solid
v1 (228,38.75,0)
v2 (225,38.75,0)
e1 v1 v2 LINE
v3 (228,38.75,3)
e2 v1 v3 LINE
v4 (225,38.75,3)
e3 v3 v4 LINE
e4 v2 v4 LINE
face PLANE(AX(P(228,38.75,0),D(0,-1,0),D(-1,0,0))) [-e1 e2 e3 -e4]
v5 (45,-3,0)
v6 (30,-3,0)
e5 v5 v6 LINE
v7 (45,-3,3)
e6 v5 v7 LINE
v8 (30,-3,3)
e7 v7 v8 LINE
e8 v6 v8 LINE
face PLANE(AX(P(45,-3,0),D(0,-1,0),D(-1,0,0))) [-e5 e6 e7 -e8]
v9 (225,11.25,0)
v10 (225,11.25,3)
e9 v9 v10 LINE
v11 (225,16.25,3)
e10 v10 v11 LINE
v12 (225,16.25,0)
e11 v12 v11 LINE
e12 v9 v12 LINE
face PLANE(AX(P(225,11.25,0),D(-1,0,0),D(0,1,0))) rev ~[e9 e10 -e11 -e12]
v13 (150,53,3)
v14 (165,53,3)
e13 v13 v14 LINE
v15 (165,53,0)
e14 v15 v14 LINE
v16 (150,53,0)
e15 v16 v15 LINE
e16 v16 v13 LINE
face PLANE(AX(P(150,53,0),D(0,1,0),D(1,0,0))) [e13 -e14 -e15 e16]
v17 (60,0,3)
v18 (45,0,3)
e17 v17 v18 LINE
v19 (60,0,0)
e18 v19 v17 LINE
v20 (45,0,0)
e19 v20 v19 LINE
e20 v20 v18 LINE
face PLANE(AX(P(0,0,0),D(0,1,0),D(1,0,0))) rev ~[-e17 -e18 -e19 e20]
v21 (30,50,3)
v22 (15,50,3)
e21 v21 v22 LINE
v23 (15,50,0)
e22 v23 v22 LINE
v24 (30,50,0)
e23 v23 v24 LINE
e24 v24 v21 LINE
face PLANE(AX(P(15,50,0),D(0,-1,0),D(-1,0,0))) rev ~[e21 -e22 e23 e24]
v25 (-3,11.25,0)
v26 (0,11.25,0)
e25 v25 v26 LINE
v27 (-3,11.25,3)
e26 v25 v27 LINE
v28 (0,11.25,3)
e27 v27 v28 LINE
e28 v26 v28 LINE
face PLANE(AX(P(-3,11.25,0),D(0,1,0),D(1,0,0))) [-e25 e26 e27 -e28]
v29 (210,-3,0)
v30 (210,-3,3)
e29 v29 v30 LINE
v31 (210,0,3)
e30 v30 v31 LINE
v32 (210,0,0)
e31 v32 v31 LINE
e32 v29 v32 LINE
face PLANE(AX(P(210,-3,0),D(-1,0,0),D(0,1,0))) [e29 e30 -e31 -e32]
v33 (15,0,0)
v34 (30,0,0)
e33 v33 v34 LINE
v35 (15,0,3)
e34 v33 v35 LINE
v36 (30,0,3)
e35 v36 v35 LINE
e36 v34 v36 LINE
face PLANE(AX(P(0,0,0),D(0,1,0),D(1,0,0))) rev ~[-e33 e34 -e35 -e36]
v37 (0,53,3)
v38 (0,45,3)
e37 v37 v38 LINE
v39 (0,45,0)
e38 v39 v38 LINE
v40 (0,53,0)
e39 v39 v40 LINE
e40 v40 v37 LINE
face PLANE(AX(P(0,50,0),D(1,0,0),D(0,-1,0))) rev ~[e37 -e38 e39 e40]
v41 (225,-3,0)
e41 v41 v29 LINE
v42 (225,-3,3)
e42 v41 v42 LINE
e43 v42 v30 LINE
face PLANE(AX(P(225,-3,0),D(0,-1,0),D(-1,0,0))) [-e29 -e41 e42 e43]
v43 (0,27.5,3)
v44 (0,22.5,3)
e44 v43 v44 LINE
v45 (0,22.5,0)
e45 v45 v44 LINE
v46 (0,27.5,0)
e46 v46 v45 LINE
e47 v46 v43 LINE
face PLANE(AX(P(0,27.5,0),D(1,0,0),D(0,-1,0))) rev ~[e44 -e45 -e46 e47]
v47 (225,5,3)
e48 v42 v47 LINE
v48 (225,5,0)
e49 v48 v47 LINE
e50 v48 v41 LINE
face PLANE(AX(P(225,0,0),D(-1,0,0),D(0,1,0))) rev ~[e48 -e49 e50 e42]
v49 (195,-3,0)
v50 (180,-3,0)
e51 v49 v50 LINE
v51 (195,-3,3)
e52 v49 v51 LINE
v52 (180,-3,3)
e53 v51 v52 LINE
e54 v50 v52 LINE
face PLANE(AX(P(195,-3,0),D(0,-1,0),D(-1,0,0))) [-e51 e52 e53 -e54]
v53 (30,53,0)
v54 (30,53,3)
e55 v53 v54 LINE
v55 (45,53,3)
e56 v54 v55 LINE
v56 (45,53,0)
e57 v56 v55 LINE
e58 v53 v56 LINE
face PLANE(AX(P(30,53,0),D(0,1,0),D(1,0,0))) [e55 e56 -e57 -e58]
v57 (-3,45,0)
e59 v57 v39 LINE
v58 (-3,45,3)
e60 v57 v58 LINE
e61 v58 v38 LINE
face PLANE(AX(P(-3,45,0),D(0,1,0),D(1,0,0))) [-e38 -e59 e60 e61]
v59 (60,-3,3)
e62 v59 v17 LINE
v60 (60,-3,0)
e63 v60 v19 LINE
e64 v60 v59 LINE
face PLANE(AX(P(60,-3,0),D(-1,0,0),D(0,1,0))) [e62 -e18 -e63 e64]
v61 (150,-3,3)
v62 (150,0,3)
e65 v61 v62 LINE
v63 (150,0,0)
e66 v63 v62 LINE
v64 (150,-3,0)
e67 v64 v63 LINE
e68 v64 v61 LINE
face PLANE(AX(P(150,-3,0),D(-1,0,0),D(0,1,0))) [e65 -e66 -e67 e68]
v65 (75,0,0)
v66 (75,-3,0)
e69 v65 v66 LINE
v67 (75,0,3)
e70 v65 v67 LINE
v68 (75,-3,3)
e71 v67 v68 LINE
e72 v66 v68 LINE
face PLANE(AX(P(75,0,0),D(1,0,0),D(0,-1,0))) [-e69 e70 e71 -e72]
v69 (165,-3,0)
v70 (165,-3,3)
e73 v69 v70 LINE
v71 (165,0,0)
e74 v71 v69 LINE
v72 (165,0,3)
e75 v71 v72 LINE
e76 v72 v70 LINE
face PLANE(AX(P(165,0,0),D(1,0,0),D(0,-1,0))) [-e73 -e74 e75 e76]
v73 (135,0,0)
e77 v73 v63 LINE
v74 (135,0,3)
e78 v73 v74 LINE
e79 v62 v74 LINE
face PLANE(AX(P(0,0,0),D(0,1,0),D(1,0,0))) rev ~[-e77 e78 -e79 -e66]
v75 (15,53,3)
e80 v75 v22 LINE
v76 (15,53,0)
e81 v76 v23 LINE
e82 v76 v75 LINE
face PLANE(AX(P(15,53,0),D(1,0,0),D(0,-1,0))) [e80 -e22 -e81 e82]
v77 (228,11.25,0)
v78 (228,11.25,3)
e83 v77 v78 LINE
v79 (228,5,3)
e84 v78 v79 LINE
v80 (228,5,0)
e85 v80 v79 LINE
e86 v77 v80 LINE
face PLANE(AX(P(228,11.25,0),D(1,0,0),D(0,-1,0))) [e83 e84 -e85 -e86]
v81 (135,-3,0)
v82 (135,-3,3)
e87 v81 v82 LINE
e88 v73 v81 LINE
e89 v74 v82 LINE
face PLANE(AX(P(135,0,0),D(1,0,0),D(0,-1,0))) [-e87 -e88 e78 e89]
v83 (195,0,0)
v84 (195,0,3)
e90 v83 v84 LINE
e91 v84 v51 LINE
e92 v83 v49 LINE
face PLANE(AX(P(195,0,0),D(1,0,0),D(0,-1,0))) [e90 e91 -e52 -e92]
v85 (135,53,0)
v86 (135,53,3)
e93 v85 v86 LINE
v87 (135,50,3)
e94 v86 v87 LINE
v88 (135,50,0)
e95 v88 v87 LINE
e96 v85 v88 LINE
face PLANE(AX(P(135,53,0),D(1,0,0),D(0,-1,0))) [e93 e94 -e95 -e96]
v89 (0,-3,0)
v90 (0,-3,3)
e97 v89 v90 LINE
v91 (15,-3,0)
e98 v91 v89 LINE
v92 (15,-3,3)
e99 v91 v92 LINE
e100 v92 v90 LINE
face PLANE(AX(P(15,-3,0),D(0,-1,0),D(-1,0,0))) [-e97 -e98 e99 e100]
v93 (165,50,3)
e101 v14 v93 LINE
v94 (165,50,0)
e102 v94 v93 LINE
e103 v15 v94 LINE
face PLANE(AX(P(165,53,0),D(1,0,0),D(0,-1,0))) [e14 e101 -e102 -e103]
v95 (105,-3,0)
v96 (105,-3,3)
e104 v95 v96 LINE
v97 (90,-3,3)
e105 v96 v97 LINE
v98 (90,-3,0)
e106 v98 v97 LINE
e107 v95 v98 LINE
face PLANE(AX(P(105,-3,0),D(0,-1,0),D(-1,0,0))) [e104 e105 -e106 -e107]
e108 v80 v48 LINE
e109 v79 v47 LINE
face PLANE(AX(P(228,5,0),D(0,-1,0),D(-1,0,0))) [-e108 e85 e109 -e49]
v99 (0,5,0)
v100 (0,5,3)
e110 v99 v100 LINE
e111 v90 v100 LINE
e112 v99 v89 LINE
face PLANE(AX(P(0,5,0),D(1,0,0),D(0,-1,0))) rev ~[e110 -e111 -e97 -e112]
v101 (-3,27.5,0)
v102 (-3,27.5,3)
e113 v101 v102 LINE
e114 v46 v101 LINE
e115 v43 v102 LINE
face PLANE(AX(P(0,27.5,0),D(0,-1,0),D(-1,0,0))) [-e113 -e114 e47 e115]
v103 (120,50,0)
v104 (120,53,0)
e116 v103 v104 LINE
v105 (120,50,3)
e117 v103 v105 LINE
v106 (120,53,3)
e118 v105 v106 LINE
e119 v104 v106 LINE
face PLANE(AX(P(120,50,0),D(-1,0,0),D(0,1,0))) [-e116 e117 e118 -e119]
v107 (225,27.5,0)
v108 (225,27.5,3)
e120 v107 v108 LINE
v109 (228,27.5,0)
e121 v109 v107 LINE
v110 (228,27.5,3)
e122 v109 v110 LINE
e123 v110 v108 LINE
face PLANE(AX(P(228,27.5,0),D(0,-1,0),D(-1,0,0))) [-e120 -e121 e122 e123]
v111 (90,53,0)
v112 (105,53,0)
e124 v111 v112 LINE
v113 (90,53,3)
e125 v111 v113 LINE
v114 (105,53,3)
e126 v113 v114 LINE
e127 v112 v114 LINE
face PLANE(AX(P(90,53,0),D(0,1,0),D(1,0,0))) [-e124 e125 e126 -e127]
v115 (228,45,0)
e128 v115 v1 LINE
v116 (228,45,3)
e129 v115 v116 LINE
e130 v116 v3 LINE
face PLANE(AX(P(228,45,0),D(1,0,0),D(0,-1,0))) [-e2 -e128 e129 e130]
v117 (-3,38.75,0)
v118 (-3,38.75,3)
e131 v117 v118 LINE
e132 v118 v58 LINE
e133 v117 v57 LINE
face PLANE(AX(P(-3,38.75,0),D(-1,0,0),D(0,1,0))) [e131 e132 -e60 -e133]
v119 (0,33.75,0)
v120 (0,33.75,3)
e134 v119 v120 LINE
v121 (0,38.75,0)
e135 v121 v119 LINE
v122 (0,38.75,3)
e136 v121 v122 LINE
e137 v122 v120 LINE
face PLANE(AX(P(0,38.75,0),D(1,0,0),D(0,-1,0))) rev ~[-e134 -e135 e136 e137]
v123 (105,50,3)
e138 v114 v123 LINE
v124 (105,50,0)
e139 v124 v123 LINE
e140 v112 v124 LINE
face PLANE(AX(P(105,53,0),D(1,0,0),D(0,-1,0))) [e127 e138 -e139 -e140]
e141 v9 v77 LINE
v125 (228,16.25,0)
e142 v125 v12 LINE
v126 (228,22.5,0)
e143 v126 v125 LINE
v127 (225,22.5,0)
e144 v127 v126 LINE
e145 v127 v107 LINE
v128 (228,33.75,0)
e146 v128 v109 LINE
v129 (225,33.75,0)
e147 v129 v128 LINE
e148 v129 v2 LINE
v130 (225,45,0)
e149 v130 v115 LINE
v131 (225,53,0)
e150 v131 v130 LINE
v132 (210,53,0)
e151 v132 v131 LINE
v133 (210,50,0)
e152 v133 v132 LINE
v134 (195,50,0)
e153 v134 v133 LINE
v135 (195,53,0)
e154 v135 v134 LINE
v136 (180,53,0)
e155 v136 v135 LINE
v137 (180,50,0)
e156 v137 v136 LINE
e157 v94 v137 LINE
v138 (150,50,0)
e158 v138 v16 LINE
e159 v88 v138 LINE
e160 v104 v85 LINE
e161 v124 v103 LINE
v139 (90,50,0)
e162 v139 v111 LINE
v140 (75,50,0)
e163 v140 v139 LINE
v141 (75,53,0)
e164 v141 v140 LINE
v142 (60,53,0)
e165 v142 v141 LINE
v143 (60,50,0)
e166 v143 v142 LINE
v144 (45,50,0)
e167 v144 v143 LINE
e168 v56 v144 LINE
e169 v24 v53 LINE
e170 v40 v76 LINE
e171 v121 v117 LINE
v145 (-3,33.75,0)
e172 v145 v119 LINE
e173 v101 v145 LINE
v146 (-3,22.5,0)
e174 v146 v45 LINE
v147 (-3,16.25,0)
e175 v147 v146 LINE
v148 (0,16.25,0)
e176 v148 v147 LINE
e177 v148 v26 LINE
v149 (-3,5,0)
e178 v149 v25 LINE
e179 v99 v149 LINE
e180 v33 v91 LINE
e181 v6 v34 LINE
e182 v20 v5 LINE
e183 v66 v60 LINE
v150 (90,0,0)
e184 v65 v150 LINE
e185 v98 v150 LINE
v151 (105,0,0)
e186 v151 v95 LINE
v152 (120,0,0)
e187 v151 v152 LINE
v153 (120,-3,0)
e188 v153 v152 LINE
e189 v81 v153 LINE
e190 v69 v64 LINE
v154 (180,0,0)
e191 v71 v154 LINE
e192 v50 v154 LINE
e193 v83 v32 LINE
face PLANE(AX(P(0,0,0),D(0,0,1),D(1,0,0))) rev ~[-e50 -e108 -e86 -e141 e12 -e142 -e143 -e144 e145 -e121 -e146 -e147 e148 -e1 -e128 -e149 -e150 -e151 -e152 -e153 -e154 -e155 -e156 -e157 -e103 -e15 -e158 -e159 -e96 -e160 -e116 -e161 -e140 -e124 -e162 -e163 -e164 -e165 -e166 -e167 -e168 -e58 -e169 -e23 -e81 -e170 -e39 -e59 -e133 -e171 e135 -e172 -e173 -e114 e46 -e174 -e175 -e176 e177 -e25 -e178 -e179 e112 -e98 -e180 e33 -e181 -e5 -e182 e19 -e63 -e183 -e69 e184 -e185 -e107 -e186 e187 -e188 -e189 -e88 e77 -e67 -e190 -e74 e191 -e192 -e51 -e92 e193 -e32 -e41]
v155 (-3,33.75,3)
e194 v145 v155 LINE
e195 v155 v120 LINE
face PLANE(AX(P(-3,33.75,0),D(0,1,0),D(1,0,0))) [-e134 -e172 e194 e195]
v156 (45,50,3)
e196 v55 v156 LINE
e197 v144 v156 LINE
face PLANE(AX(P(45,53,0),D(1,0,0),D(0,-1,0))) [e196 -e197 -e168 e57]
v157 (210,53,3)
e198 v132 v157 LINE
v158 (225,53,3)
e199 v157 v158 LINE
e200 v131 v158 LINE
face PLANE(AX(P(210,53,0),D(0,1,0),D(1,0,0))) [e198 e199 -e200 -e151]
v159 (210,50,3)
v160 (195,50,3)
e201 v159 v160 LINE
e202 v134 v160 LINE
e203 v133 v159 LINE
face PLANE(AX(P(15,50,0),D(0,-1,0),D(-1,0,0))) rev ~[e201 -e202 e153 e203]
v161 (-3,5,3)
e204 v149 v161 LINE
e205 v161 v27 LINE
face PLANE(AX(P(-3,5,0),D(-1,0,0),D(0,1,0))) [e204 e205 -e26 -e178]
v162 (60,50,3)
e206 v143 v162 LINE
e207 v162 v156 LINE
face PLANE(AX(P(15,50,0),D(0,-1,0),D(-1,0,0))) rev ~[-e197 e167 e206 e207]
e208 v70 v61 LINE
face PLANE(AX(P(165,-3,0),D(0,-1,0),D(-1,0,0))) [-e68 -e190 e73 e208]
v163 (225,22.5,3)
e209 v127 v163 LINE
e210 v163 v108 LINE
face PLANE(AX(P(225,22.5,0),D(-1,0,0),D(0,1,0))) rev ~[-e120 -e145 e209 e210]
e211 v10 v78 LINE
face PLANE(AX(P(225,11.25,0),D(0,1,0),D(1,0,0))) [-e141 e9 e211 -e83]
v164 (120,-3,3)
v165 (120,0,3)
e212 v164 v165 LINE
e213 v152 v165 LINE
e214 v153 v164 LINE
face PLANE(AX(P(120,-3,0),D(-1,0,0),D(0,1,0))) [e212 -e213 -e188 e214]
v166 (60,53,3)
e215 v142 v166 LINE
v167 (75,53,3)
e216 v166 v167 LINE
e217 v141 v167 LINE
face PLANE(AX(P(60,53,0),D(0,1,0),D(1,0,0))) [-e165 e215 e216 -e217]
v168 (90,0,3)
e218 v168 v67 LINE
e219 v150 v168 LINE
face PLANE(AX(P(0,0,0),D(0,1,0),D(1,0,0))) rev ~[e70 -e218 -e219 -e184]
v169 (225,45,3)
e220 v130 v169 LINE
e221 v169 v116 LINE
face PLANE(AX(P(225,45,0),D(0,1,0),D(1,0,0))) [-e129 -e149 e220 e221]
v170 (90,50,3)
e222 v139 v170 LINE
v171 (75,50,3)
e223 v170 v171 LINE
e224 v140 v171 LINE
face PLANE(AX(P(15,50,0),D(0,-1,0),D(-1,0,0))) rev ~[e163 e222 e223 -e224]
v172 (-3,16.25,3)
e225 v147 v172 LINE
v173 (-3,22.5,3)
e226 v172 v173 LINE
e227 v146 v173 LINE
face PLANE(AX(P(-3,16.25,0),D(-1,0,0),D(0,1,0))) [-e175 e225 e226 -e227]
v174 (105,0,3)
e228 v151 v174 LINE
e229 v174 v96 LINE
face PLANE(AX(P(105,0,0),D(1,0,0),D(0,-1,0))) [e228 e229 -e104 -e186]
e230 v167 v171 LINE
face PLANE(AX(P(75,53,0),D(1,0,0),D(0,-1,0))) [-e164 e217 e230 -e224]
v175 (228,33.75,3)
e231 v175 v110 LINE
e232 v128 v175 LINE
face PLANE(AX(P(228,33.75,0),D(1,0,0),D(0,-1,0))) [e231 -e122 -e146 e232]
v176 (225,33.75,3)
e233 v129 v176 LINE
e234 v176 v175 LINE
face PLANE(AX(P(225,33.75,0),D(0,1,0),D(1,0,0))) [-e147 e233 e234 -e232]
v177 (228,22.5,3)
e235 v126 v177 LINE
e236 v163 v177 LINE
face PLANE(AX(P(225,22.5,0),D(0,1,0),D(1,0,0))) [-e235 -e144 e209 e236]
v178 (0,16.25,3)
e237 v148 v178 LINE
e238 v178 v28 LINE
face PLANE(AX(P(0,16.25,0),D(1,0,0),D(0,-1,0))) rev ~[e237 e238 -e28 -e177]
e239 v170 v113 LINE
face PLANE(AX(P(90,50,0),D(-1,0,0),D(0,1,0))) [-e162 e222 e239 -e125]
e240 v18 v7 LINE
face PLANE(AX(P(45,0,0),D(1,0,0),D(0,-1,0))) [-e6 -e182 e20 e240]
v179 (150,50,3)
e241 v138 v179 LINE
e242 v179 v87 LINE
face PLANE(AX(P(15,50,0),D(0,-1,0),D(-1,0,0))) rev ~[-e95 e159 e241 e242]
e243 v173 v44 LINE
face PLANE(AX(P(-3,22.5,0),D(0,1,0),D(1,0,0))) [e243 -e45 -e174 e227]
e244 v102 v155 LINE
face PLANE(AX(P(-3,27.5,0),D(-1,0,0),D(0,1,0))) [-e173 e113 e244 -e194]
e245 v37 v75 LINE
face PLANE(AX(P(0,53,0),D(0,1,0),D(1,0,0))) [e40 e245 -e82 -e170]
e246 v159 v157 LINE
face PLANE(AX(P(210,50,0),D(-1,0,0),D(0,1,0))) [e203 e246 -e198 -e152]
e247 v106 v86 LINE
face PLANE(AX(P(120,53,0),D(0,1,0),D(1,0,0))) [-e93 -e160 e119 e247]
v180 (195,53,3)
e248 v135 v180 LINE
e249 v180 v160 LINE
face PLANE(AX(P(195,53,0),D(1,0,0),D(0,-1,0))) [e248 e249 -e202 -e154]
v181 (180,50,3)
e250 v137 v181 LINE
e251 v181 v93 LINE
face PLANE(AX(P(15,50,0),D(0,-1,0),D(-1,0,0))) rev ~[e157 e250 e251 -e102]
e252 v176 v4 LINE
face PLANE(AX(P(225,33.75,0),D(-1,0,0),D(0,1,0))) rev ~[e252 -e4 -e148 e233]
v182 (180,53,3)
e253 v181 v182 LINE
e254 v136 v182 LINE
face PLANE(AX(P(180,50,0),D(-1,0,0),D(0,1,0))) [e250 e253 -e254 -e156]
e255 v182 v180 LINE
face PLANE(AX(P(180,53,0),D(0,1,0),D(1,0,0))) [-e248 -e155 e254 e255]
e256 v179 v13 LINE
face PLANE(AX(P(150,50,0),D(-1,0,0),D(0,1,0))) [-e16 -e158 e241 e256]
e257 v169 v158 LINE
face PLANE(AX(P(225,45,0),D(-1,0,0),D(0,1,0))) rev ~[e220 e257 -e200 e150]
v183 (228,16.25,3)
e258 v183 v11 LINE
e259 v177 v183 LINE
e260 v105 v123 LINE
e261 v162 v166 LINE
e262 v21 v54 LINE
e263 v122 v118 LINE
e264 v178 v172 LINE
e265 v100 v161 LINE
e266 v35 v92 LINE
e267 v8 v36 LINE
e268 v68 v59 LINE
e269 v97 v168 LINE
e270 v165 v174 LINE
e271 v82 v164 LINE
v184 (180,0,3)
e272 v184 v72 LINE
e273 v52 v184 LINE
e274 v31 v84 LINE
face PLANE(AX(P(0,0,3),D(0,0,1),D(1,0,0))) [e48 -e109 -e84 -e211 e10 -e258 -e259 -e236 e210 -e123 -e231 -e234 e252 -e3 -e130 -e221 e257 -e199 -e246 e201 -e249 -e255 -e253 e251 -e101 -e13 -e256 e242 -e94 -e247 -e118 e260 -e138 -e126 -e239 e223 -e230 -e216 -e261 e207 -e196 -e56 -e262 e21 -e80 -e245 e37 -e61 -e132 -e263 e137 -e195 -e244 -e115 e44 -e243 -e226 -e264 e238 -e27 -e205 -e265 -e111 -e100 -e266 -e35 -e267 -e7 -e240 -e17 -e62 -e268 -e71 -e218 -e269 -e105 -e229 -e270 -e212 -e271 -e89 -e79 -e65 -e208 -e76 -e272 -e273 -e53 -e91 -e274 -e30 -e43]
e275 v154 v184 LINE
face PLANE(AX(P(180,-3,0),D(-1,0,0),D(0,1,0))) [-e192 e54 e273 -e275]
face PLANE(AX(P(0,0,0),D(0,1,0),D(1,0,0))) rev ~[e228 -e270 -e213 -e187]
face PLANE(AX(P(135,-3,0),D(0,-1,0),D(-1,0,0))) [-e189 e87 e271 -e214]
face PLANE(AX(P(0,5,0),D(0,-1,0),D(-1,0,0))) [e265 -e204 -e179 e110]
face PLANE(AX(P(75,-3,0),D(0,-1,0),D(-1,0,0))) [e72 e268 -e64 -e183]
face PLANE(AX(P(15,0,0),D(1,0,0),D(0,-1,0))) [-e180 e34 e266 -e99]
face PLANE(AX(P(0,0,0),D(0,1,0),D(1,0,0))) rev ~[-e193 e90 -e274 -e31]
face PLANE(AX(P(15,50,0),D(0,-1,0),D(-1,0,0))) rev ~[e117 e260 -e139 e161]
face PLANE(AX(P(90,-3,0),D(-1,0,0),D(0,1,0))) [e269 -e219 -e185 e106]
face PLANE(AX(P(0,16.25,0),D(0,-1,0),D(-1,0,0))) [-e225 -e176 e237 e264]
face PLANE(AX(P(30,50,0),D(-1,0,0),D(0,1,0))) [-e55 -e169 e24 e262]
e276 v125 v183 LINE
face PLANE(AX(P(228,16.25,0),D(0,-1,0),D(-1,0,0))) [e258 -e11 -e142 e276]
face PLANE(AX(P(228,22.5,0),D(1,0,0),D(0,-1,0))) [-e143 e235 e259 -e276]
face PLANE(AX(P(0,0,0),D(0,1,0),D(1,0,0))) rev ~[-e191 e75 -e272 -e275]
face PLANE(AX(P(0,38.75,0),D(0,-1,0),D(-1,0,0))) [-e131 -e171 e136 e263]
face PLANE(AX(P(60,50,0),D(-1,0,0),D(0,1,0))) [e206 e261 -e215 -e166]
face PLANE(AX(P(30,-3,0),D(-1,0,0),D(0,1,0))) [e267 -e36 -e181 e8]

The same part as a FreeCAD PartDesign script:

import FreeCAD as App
import Part
import Sketcher
Q = App.Units.Quantity

doc = App.newDocument("Part")
params = doc.addObject("Spreadsheet::Sheet", "Params")
for row, (alias, value) in enumerate([
    ("sketch1_width", "225 mm"),
    ("sketch1_width2", "3 mm"),
    ("sketch1_height", "5 mm"),
    ("pad1_length", "3 mm"),
    ("sketch2_width", "15 mm"),
    ("sketch2_height", "3 mm"),
    ("pad2_length", "3 mm"),
], start=1):
    params.set(f"A{row}", alias)
    params.set(f"B{row}", "=" + value)
    params.setAlias(f"B{row}", alias)

body = doc.addObject("PartDesign::Body", "Body")

# Sketch on XY plane
sketch1 = body.newObject("Sketcher::SketchObject", "Sketch")
sketch1.AttachmentSupport = (doc.getObject("XY_Plane"), [""])
sketch1.MapMode = "FlatFace"
sketch1.addGeometry([
    Part.LineSegment(App.Vector(0, 5, 0), App.Vector(0, 0, 0)),  # 0
    Part.LineSegment(App.Vector(0, 0, 0), App.Vector(225, 0, 0)),  # 1
    Part.LineSegment(App.Vector(225, 0, 0), App.Vector(225, 5, 0)),  # 2
    Part.LineSegment(App.Vector(225, 5, 0), App.Vector(228, 5, 0)),  # 3
    Part.LineSegment(App.Vector(228, 5, 0), App.Vector(228, 11.25, 0)),  # 4
    Part.LineSegment(App.Vector(228, 11.25, 0), App.Vector(225, 11.25, 0)),  # 5
    Part.LineSegment(App.Vector(225, 11.25, 0), App.Vector(225, 16.25, 0)),  # 6
    Part.LineSegment(App.Vector(225, 16.25, 0), App.Vector(228, 16.25, 0)),  # 7
    Part.LineSegment(App.Vector(228, 16.25, 0), App.Vector(228, 22.5, 0)),  # 8
    Part.LineSegment(App.Vector(228, 22.5, 0), App.Vector(225, 22.5, 0)),  # 9
    Part.LineSegment(App.Vector(225, 22.5, 0), App.Vector(225, 27.5, 0)),  # 10
    Part.LineSegment(App.Vector(225, 27.5, 0), App.Vector(228, 27.5, 0)),  # 11
    Part.LineSegment(App.Vector(228, 27.5, 0), App.Vector(228, 33.75, 0)),  # 12
    Part.LineSegment(App.Vector(228, 33.75, 0), App.Vector(225, 33.75, 0)),  # 13
    Part.LineSegment(App.Vector(225, 33.75, 0), App.Vector(225, 38.75, 0)),  # 14
    Part.LineSegment(App.Vector(225, 38.75, 0), App.Vector(228, 38.75, 0)),  # 15
    Part.LineSegment(App.Vector(228, 38.75, 0), App.Vector(228, 45, 0)),  # 16
    Part.LineSegment(App.Vector(228, 45, 0), App.Vector(225, 45, 0)),  # 17
    Part.LineSegment(App.Vector(225, 45, 0), App.Vector(225, 50, 0)),  # 18
    Part.LineSegment(App.Vector(225, 50, 0), App.Vector(0, 50, 0)),  # 19
    Part.LineSegment(App.Vector(0, 50, 0), App.Vector(0, 45, 0)),  # 20
    Part.LineSegment(App.Vector(0, 45, 0), App.Vector(-3, 45, 0)),  # 21
    Part.LineSegment(App.Vector(-3, 45, 0), App.Vector(-3, 38.75, 0)),  # 22
    Part.LineSegment(App.Vector(-3, 38.75, 0), App.Vector(0, 38.75, 0)),  # 23
    Part.LineSegment(App.Vector(0, 38.75, 0), App.Vector(0, 33.75, 0)),  # 24
    Part.LineSegment(App.Vector(0, 33.75, 0), App.Vector(-3, 33.75, 0)),  # 25
    Part.LineSegment(App.Vector(-3, 33.75, 0), App.Vector(-3, 27.5, 0)),  # 26
    Part.LineSegment(App.Vector(-3, 27.5, 0), App.Vector(0, 27.5, 0)),  # 27
    Part.LineSegment(App.Vector(0, 27.5, 0), App.Vector(0, 22.5, 0)),  # 28
    Part.LineSegment(App.Vector(0, 22.5, 0), App.Vector(-3, 22.5, 0)),  # 29
    Part.LineSegment(App.Vector(-3, 22.5, 0), App.Vector(-3, 16.25, 0)),  # 30
    Part.LineSegment(App.Vector(-3, 16.25, 0), App.Vector(0, 16.25, 0)),  # 31
    Part.LineSegment(App.Vector(0, 16.25, 0), App.Vector(0, 11.25, 0)),  # 32
    Part.LineSegment(App.Vector(0, 11.25, 0), App.Vector(-3, 11.25, 0)),  # 33
    Part.LineSegment(App.Vector(-3, 11.25, 0), App.Vector(-3, 5, 0)),  # 34
    Part.LineSegment(App.Vector(-3, 5, 0), App.Vector(0, 5, 0)),  # 35
], False)
sketch1.addConstraint([
    Sketcher.Constraint("Coincident", 0, 2, 1, 1),
    Sketcher.Constraint("Coincident", 1, 2, 2, 1),
    Sketcher.Constraint("Coincident", 2, 2, 3, 1),
    Sketcher.Constraint("Coincident", 3, 2, 4, 1),
    Sketcher.Constraint("Coincident", 4, 2, 5, 1),
    Sketcher.Constraint("Coincident", 5, 2, 6, 1),
    Sketcher.Constraint("Coincident", 6, 2, 7, 1),
    Sketcher.Constraint("Coincident", 7, 2, 8, 1),
    Sketcher.Constraint("Coincident", 8, 2, 9, 1),
    Sketcher.Constraint("Coincident", 9, 2, 10, 1),
    Sketcher.Constraint("Coincident", 10, 2, 11, 1),
    Sketcher.Constraint("Coincident", 11, 2, 12, 1),
    Sketcher.Constraint("Coincident", 12, 2, 13, 1),
    Sketcher.Constraint("Coincident", 13, 2, 14, 1),
    Sketcher.Constraint("Coincident", 14, 2, 15, 1),
    Sketcher.Constraint("Coincident", 15, 2, 16, 1),
    Sketcher.Constraint("Coincident", 16, 2, 17, 1),
    Sketcher.Constraint("Coincident", 17, 2, 18, 1),
    Sketcher.Constraint("Coincident", 18, 2, 19, 1),
    Sketcher.Constraint("Coincident", 19, 2, 20, 1),
    Sketcher.Constraint("Coincident", 20, 2, 21, 1),
    Sketcher.Constraint("Coincident", 21, 2, 22, 1),
    Sketcher.Constraint("Coincident", 22, 2, 23, 1),
    Sketcher.Constraint("Coincident", 23, 2, 24, 1),
    Sketcher.Constraint("Coincident", 24, 2, 25, 1),
    Sketcher.Constraint("Coincident", 25, 2, 26, 1),
    Sketcher.Constraint("Coincident", 26, 2, 27, 1),
    Sketcher.Constraint("Coincident", 27, 2, 28, 1),
    Sketcher.Constraint("Coincident", 28, 2, 29, 1),
    Sketcher.Constraint("Coincident", 29, 2, 30, 1),
    Sketcher.Constraint("Coincident", 30, 2, 31, 1),
    Sketcher.Constraint("Coincident", 31, 2, 32, 1),
    Sketcher.Constraint("Coincident", 32, 2, 33, 1),
    Sketcher.Constraint("Coincident", 33, 2, 34, 1),
    Sketcher.Constraint("Coincident", 34, 2, 35, 1),
    Sketcher.Constraint("Coincident", 35, 2, 0, 1),
    Sketcher.Constraint("Vertical", 0),
    Sketcher.Constraint("Horizontal", 1),
    Sketcher.Constraint("Vertical", 2),
    Sketcher.Constraint("Horizontal", 3),
    Sketcher.Constraint("Vertical", 4),
    Sketcher.Constraint("Horizontal", 5),
    Sketcher.Constraint("Vertical", 6),
    Sketcher.Constraint("Horizontal", 7),
    Sketcher.Constraint("Vertical", 8),
    Sketcher.Constraint("Horizontal", 9),
    Sketcher.Constraint("Vertical", 10),
    Sketcher.Constraint("Horizontal", 11),
    Sketcher.Constraint("Vertical", 12),
    Sketcher.Constraint("Horizontal", 13),
    Sketcher.Constraint("Vertical", 14),
    Sketcher.Constraint("Horizontal", 15),
    Sketcher.Constraint("Vertical", 16),
    Sketcher.Constraint("Horizontal", 17),
    Sketcher.Constraint("Vertical", 18),
    Sketcher.Constraint("Horizontal", 19),
    Sketcher.Constraint("Vertical", 20),
    Sketcher.Constraint("Horizontal", 21),
    Sketcher.Constraint("Vertical", 22),
    Sketcher.Constraint("Horizontal", 23),
    Sketcher.Constraint("Vertical", 24),
    Sketcher.Constraint("Horizontal", 25),
    Sketcher.Constraint("Vertical", 26),
    Sketcher.Constraint("Horizontal", 27),
    Sketcher.Constraint("Vertical", 28),
    Sketcher.Constraint("Horizontal", 29),
    Sketcher.Constraint("Vertical", 30),
    Sketcher.Constraint("Horizontal", 31),
    Sketcher.Constraint("Vertical", 32),
    Sketcher.Constraint("Horizontal", 33),
    Sketcher.Constraint("Vertical", 34),
    Sketcher.Constraint("Horizontal", 35),
    Sketcher.Constraint("Coincident", 0, 2, -1, 1),
    Sketcher.Constraint("PointOnObject", 19, 2, -2),
    Sketcher.Constraint("PointOnObject", 23, 2, -2),
    Sketcher.Constraint("PointOnObject", 27, 2, -2),
    Sketcher.Constraint("PointOnObject", 31, 2, -2),
    Sketcher.Constraint("Horizontal", 17, 2, 20, 2),
    Sketcher.Constraint("Horizontal", 15, 2, 22, 2),
    Sketcher.Constraint("Horizontal", 13, 2, 24, 2),
    Sketcher.Constraint("Horizontal", 11, 2, 26, 2),
    Sketcher.Constraint("Horizontal", 9, 2, 28, 2),
    Sketcher.Constraint("Horizontal", 7, 2, 30, 2),
    Sketcher.Constraint("Horizontal", 5, 2, 32, 2),
    Sketcher.Constraint("Horizontal", 3, 2, 34, 2),
    Sketcher.Constraint("Vertical", 2, 2, 5, 2),
    Sketcher.Constraint("Vertical", 4, 2, 7, 2),
    Sketcher.Constraint("Vertical", 6, 2, 9, 2),
    Sketcher.Constraint("Vertical", 8, 2, 11, 2),
    Sketcher.Constraint("Vertical", 10, 2, 13, 2),
    Sketcher.Constraint("Vertical", 12, 2, 15, 2),
    Sketcher.Constraint("Vertical", 14, 2, 17, 2),
    Sketcher.Constraint("Vertical", 22, 2, 25, 2),
    Sketcher.Constraint("Vertical", 26, 2, 29, 2),
    Sketcher.Constraint("Vertical", 30, 2, 33, 2),
    Sketcher.Constraint("Equal", 17, 21),
    Sketcher.Constraint("Equal", 2, 6),
    Sketcher.Constraint("Equal", 4, 8),
    Sketcher.Constraint("Equal", 6, 10),
    Sketcher.Constraint("Equal", 8, 12),
    Sketcher.Constraint("Equal", 10, 14),
    Sketcher.Constraint("Equal", 12, 16),
    Sketcher.Constraint("Equal", 14, 18),
    Sketcher.Constraint("DistanceX", 1, 1, 1, 2, Q("225 mm")),
    Sketcher.Constraint("DistanceX", 3, 1, 3, 2, Q("3 mm")),
    Sketcher.Constraint("DistanceY", 0, 2, 0, 1, Q("5 mm")),
    Sketcher.Constraint("DistanceY", -1, 1, 18, 2, Q("50 mm")),
])
sketch1.setExpression("Constraints[103]", "Params.sketch1_width")
sketch1.setExpression("Constraints[104]", "Params.sketch1_width2")
sketch1.setExpression("Constraints[105]", "Params.sketch1_height")
pad1 = body.newObject("PartDesign::Pad", "Pad")
pad1.Profile = sketch1
pad1.setExpression("Length", "Params.pad1_length")

# Sketch on XY plane
sketch2 = body.newObject("Sketcher::SketchObject", "Sketch001")
sketch2.AttachmentSupport = (doc.getObject("XY_Plane"), [""])
sketch2.MapMode = "FlatFace"
sketch2.addGeometry([
    Part.LineSegment(App.Vector(15, 0, 0), App.Vector(0, 0, 0)),  # 0
    Part.LineSegment(App.Vector(0, 0, 0), App.Vector(0, -3, 0)),  # 1
    Part.LineSegment(App.Vector(0, -3, 0), App.Vector(15, -3, 0)),  # 2
    Part.LineSegment(App.Vector(15, -3, 0), App.Vector(15, 0, 0)),  # 3
    Part.LineSegment(App.Vector(45, 0, 0), App.Vector(30, 0, 0)),  # 4
    Part.LineSegment(App.Vector(30, 0, 0), App.Vector(30, -3, 0)),  # 5
    Part.LineSegment(App.Vector(30, -3, 0), App.Vector(45, -3, 0)),  # 6
    Part.LineSegment(App.Vector(45, -3, 0), App.Vector(45, 0, 0)),  # 7
    Part.LineSegment(App.Vector(75, 0, 0), App.Vector(60, 0, 0)),  # 8
    Part.LineSegment(App.Vector(60, 0, 0), App.Vector(60, -3, 0)),  # 9
    Part.LineSegment(App.Vector(60, -3, 0), App.Vector(75, -3, 0)),  # 10
    Part.LineSegment(App.Vector(75, -3, 0), App.Vector(75, 0, 0)),  # 11
    Part.LineSegment(App.Vector(105, 0, 0), App.Vector(90, 0, 0)),  # 12
    Part.LineSegment(App.Vector(90, 0, 0), App.Vector(90, -3, 0)),  # 13
    Part.LineSegment(App.Vector(90, -3, 0), App.Vector(105, -3, 0)),  # 14
    Part.LineSegment(App.Vector(105, -3, 0), App.Vector(105, 0, 0)),  # 15
    Part.LineSegment(App.Vector(135, 0, 0), App.Vector(120, 0, 0)),  # 16
    Part.LineSegment(App.Vector(120, 0, 0), App.Vector(120, -3, 0)),  # 17
    Part.LineSegment(App.Vector(120, -3, 0), App.Vector(135, -3, 0)),  # 18
    Part.LineSegment(App.Vector(135, -3, 0), App.Vector(135, 0, 0)),  # 19
    Part.LineSegment(App.Vector(0, 53, 0), App.Vector(0, 50, 0)),  # 20
    Part.LineSegment(App.Vector(0, 50, 0), App.Vector(15, 50, 0)),  # 21
    Part.LineSegment(App.Vector(15, 50, 0), App.Vector(15, 53, 0)),  # 22
    Part.LineSegment(App.Vector(15, 53, 0), App.Vector(0, 53, 0)),  # 23
    Part.LineSegment(App.Vector(165, 0, 0), App.Vector(150, 0, 0)),  # 24
    Part.LineSegment(App.Vector(150, 0, 0), App.Vector(150, -3, 0)),  # 25
    Part.LineSegment(App.Vector(150, -3, 0), App.Vector(165, -3, 0)),  # 26
    Part.LineSegment(App.Vector(165, -3, 0), App.Vector(165, 0, 0)),  # 27
    Part.LineSegment(App.Vector(30, 53, 0), App.Vector(30, 50, 0)),  # 28
    Part.LineSegment(App.Vector(30, 50, 0), App.Vector(45, 50, 0)),  # 29
    Part.LineSegment(App.Vector(45, 50, 0), App.Vector(45, 53, 0)),  # 30
    Part.LineSegment(App.Vector(45, 53, 0), App.Vector(30, 53, 0)),  # 31
    Part.LineSegment(App.Vector(195, 0, 0), App.Vector(180, 0, 0)),  # 32
    Part.LineSegment(App.Vector(180, 0, 0), App.Vector(180, -3, 0)),  # 33
    Part.LineSegment(App.Vector(180, -3, 0), App.Vector(195, -3, 0)),  # 34
    Part.LineSegment(App.Vector(195, -3, 0), App.Vector(195, 0, 0)),  # 35
    Part.LineSegment(App.Vector(60, 53, 0), App.Vector(60, 50, 0)),  # 36
    Part.LineSegment(App.Vector(60, 50, 0), App.Vector(75, 50, 0)),  # 37
    Part.LineSegment(App.Vector(75, 50, 0), App.Vector(75, 53, 0)),  # 38
    Part.LineSegment(App.Vector(75, 53, 0), App.Vector(60, 53, 0)),  # 39
    Part.LineSegment(App.Vector(225, 0, 0), App.Vector(210, 0, 0)),  # 40
    Part.LineSegment(App.Vector(210, 0, 0), App.Vector(210, -3, 0)),  # 41
    Part.LineSegment(App.Vector(210, -3, 0), App.Vector(225, -3, 0)),  # 42
    Part.LineSegment(App.Vector(225, -3, 0), App.Vector(225, 0, 0)),  # 43
    Part.LineSegment(App.Vector(90, 53, 0), App.Vector(90, 50, 0)),  # 44
    Part.LineSegment(App.Vector(90, 50, 0), App.Vector(105, 50, 0)),  # 45
    Part.LineSegment(App.Vector(105, 50, 0), App.Vector(105, 53, 0)),  # 46
    Part.LineSegment(App.Vector(105, 53, 0), App.Vector(90, 53, 0)),  # 47
    Part.LineSegment(App.Vector(120, 53, 0), App.Vector(120, 50, 0)),  # 48
    Part.LineSegment(App.Vector(120, 50, 0), App.Vector(135, 50, 0)),  # 49
    Part.LineSegment(App.Vector(135, 50, 0), App.Vector(135, 53, 0)),  # 50
    Part.LineSegment(App.Vector(135, 53, 0), App.Vector(120, 53, 0)),  # 51
    Part.LineSegment(App.Vector(150, 53, 0), App.Vector(150, 50, 0)),  # 52
    Part.LineSegment(App.Vector(150, 50, 0), App.Vector(165, 50, 0)),  # 53
    Part.LineSegment(App.Vector(165, 50, 0), App.Vector(165, 53, 0)),  # 54
    Part.LineSegment(App.Vector(165, 53, 0), App.Vector(150, 53, 0)),  # 55
    Part.LineSegment(App.Vector(180, 53, 0), App.Vector(180, 50, 0)),  # 56
    Part.LineSegment(App.Vector(180, 50, 0), App.Vector(195, 50, 0)),  # 57
    Part.LineSegment(App.Vector(195, 50, 0), App.Vector(195, 53, 0)),  # 58
    Part.LineSegment(App.Vector(195, 53, 0), App.Vector(180, 53, 0)),  # 59
    Part.LineSegment(App.Vector(210, 53, 0), App.Vector(210, 50, 0)),  # 60
    Part.LineSegment(App.Vector(210, 50, 0), App.Vector(225, 50, 0)),  # 61
    Part.LineSegment(App.Vector(225, 50, 0), App.Vector(225, 53, 0)),  # 62
    Part.LineSegment(App.Vector(225, 53, 0), App.Vector(210, 53, 0)),  # 63
], False)
sketch2.addConstraint([
    Sketcher.Constraint("Coincident", 0, 2, 1, 1),
    Sketcher.Constraint("Coincident", 1, 2, 2, 1),
    Sketcher.Constraint("Coincident", 2, 2, 3, 1),
    Sketcher.Constraint("Coincident", 3, 2, 0, 1),
    Sketcher.Constraint("Coincident", 4, 2, 5, 1),
    Sketcher.Constraint("Coincident", 5, 2, 6, 1),
    Sketcher.Constraint("Coincident", 6, 2, 7, 1),
    Sketcher.Constraint("Coincident", 7, 2, 4, 1),
    Sketcher.Constraint("Coincident", 8, 2, 9, 1),
    Sketcher.Constraint("Coincident", 9, 2, 10, 1),
    Sketcher.Constraint("Coincident", 10, 2, 11, 1),
    Sketcher.Constraint("Coincident", 11, 2, 8, 1),
    Sketcher.Constraint("Coincident", 12, 2, 13, 1),
    Sketcher.Constraint("Coincident", 13, 2, 14, 1),
    Sketcher.Constraint("Coincident", 14, 2, 15, 1),
    Sketcher.Constraint("Coincident", 15, 2, 12, 1),
    Sketcher.Constraint("Coincident", 16, 2, 17, 1),
    Sketcher.Constraint("Coincident", 17, 2, 18, 1),
    Sketcher.Constraint("Coincident", 18, 2, 19, 1),
    Sketcher.Constraint("Coincident", 19, 2, 16, 1),
    Sketcher.Constraint("Coincident", 20, 2, 21, 1),
    Sketcher.Constraint("Coincident", 21, 2, 22, 1),
    Sketcher.Constraint("Coincident", 22, 2, 23, 1),
    Sketcher.Constraint("Coincident", 23, 2, 20, 1),
    Sketcher.Constraint("Coincident", 24, 2, 25, 1),
    Sketcher.Constraint("Coincident", 25, 2, 26, 1),
    Sketcher.Constraint("Coincident", 26, 2, 27, 1),
    Sketcher.Constraint("Coincident", 27, 2, 24, 1),
    Sketcher.Constraint("Coincident", 28, 2, 29, 1),
    Sketcher.Constraint("Coincident", 29, 2, 30, 1),
    Sketcher.Constraint("Coincident", 30, 2, 31, 1),
    Sketcher.Constraint("Coincident", 31, 2, 28, 1),
    Sketcher.Constraint("Coincident", 32, 2, 33, 1),
    Sketcher.Constraint("Coincident", 33, 2, 34, 1),
    Sketcher.Constraint("Coincident", 34, 2, 35, 1),
    Sketcher.Constraint("Coincident", 35, 2, 32, 1),
    Sketcher.Constraint("Coincident", 36, 2, 37, 1),
    Sketcher.Constraint("Coincident", 37, 2, 38, 1),
    Sketcher.Constraint("Coincident", 38, 2, 39, 1),
    Sketcher.Constraint("Coincident", 39, 2, 36, 1),
    Sketcher.Constraint("Coincident", 40, 2, 41, 1),
    Sketcher.Constraint("Coincident", 41, 2, 42, 1),
    Sketcher.Constraint("Coincident", 42, 2, 43, 1),
    Sketcher.Constraint("Coincident", 43, 2, 40, 1),
    Sketcher.Constraint("Coincident", 44, 2, 45, 1),
    Sketcher.Constraint("Coincident", 45, 2, 46, 1),
    Sketcher.Constraint("Coincident", 46, 2, 47, 1),
    Sketcher.Constraint("Coincident", 47, 2, 44, 1),
    Sketcher.Constraint("Coincident", 48, 2, 49, 1),
    Sketcher.Constraint("Coincident", 49, 2, 50, 1),
    Sketcher.Constraint("Coincident", 50, 2, 51, 1),
    Sketcher.Constraint("Coincident", 51, 2, 48, 1),
    Sketcher.Constraint("Coincident", 52, 2, 53, 1),
    Sketcher.Constraint("Coincident", 53, 2, 54, 1),
    Sketcher.Constraint("Coincident", 54, 2, 55, 1),
    Sketcher.Constraint("Coincident", 55, 2, 52, 1),
    Sketcher.Constraint("Coincident", 56, 2, 57, 1),
    Sketcher.Constraint("Coincident", 57, 2, 58, 1),
    Sketcher.Constraint("Coincident", 58, 2, 59, 1),
    Sketcher.Constraint("Coincident", 59, 2, 56, 1),
    Sketcher.Constraint("Coincident", 60, 2, 61, 1),
    Sketcher.Constraint("Coincident", 61, 2, 62, 1),
    Sketcher.Constraint("Coincident", 62, 2, 63, 1),
    Sketcher.Constraint("Coincident", 63, 2, 60, 1),
    Sketcher.Constraint("Horizontal", 0),
    Sketcher.Constraint("Vertical", 1),
    Sketcher.Constraint("Horizontal", 2),
    Sketcher.Constraint("Vertical", 3),
    Sketcher.Constraint("Horizontal", 4),
    Sketcher.Constraint("Vertical", 5),
    Sketcher.Constraint("Horizontal", 6),
    Sketcher.Constraint("Vertical", 7),
    Sketcher.Constraint("Horizontal", 8),
    Sketcher.Constraint("Vertical", 9),
    Sketcher.Constraint("Horizontal", 10),
    Sketcher.Constraint("Vertical", 11),
    Sketcher.Constraint("Horizontal", 12),
    Sketcher.Constraint("Vertical", 13),
    Sketcher.Constraint("Horizontal", 14),
    Sketcher.Constraint("Vertical", 15),
    Sketcher.Constraint("Horizontal", 16),
    Sketcher.Constraint("Vertical", 17),
    Sketcher.Constraint("Horizontal", 18),
    Sketcher.Constraint("Vertical", 19),
    Sketcher.Constraint("Vertical", 20),
    Sketcher.Constraint("Horizontal", 21),
    Sketcher.Constraint("Vertical", 22),
    Sketcher.Constraint("Horizontal", 23),
    Sketcher.Constraint("Horizontal", 24),
    Sketcher.Constraint("Vertical", 25),
    Sketcher.Constraint("Horizontal", 26),
    Sketcher.Constraint("Vertical", 27),
    Sketcher.Constraint("Vertical", 28),
    Sketcher.Constraint("Horizontal", 29),
    Sketcher.Constraint("Vertical", 30),
    Sketcher.Constraint("Horizontal", 31),
    Sketcher.Constraint("Horizontal", 32),
    Sketcher.Constraint("Vertical", 33),
    Sketcher.Constraint("Horizontal", 34),
    Sketcher.Constraint("Vertical", 35),
    Sketcher.Constraint("Vertical", 36),
    Sketcher.Constraint("Horizontal", 37),
    Sketcher.Constraint("Vertical", 38),
    Sketcher.Constraint("Horizontal", 39),
    Sketcher.Constraint("Horizontal", 40),
    Sketcher.Constraint("Vertical", 41),
    Sketcher.Constraint("Horizontal", 42),
    Sketcher.Constraint("Vertical", 43),
    Sketcher.Constraint("Vertical", 44),
    Sketcher.Constraint("Horizontal", 45),
    Sketcher.Constraint("Vertical", 46),
    Sketcher.Constraint("Horizontal", 47),
    Sketcher.Constraint("Vertical", 48),
    Sketcher.Constraint("Horizontal", 49),
    Sketcher.Constraint("Vertical", 50),
    Sketcher.Constraint("Horizontal", 51),
    Sketcher.Constraint("Vertical", 52),
    Sketcher.Constraint("Horizontal", 53),
    Sketcher.Constraint("Vertical", 54),
    Sketcher.Constraint("Horizontal", 55),
    Sketcher.Constraint("Vertical", 56),
    Sketcher.Constraint("Horizontal", 57),
    Sketcher.Constraint("Vertical", 58),
    Sketcher.Constraint("Horizontal", 59),
    Sketcher.Constraint("Vertical", 60),
    Sketcher.Constraint("Horizontal", 61),
    Sketcher.Constraint("Vertical", 62),
    Sketcher.Constraint("Horizontal", 63),
    Sketcher.Constraint("Coincident", 0, 2, -1, 1),
    Sketcher.Constraint("PointOnObject", 4, 2, -1),
    Sketcher.Constraint("PointOnObject", 8, 2, -1),
    Sketcher.Constraint("PointOnObject", 12, 2, -1),
    Sketcher.Constraint("PointOnObject", 16, 2, -1),
    Sketcher.Constraint("PointOnObject", 20, 2, -2),
    Sketcher.Constraint("PointOnObject", 24, 2, -1),
    Sketcher.Constraint("PointOnObject", 32, 2, -1),
    Sketcher.Constraint("PointOnObject", 40, 2, -1),
    Sketcher.Constraint("Horizontal", 2, 2, 5, 2),
    Sketcher.Constraint("Horizontal", 6, 2, 9, 2),
    Sketcher.Constraint("Horizontal", 10, 2, 13, 2),
    Sketcher.Constraint("Horizontal", 14, 2, 17, 2),
    Sketcher.Constraint("Horizontal", 18, 2, 25, 2),
    Sketcher.Constraint("Horizontal", 21, 2, 28, 2),
    Sketcher.Constraint("Horizontal", 23, 2, 30, 2),
    Sketcher.Constraint("Horizontal", 26, 2, 33, 2),
    Sketcher.Constraint("Horizontal", 29, 2, 36, 2),
    Sketcher.Constraint("Horizontal", 31, 2, 38, 2),
    Sketcher.Constraint("Horizontal", 34, 2, 41, 2),
    Sketcher.Constraint("Horizontal", 37, 2, 44, 2),
    Sketcher.Constraint("Horizontal", 39, 2, 46, 2),
    Sketcher.Constraint("Horizontal", 45, 2, 48, 2),
    Sketcher.Constraint("Horizontal", 47, 2, 50, 2),
    Sketcher.Constraint("Horizontal", 49, 2, 52, 2),
    Sketcher.Constraint("Horizontal", 51, 2, 54, 2),
    Sketcher.Constraint("Horizontal", 53, 2, 56, 2),
    Sketcher.Constraint("Horizontal", 55, 2, 58, 2),
    Sketcher.Constraint("Horizontal", 57, 2, 60, 2),
    Sketcher.Constraint("Horizontal", 59, 2, 62, 2),
    Sketcher.Constraint("Vertical", 3, 2, 21, 2),
    Sketcher.Constraint("Vertical", 5, 2, 28, 2),
    Sketcher.Constraint("Vertical", 7, 2, 29, 2),
    Sketcher.Constraint("Vertical", 9, 2, 36, 2),
    Sketcher.Constraint("Vertical", 11, 2, 37, 2),
    Sketcher.Constraint("Vertical", 13, 2, 44, 2),
    Sketcher.Constraint("Vertical", 15, 2, 45, 2),
    Sketcher.Constraint("Vertical", 17, 2, 48, 2),
    Sketcher.Constraint("Vertical", 19, 2, 49, 2),
    Sketcher.Constraint("Vertical", 25, 2, 52, 2),
    Sketcher.Constraint("Vertical", 27, 2, 53, 2),
    Sketcher.Constraint("Vertical", 33, 2, 56, 2),
    Sketcher.Constraint("Vertical", 35, 2, 57, 2),
    Sketcher.Constraint("Vertical", 41, 2, 60, 2),
    Sketcher.Constraint("Vertical", 43, 2, 61, 2),
    Sketcher.Constraint("Equal", 2, 4),
    Sketcher.Constraint("Equal", 6, 8),
    Sketcher.Constraint("Equal", 10, 12),
    Sketcher.Constraint("Equal", 14, 16),
    Sketcher.Constraint("Equal", 23, 24),
    Sketcher.Constraint("Equal", 31, 32),
    Sketcher.Constraint("Equal", 39, 40),
    Sketcher.Constraint("Equal", 19, 20),
    Sketcher.Constraint("DistanceX", 0, 2, 0, 1, Q("15 mm")),
    Sketcher.Constraint("DistanceY", 1, 2, 1, 1, Q("3 mm")),
    Sketcher.Constraint("DistanceX", -1, 1, 4, 2, Q("30 mm")),
    Sketcher.Constraint("DistanceY", -1, 1, 20, 2, Q("50 mm")),
    Sketcher.Constraint("DistanceX", -1, 1, 42, 2, Q("225 mm")),
    Sketcher.Constraint("DistanceX", -1, 1, 8, 2, Q("60 mm")),
    Sketcher.Constraint("DistanceX", -1, 1, 12, 2, Q("90 mm")),
    Sketcher.Constraint("DistanceX", -1, 1, 16, 2, Q("120 mm")),
    Sketcher.Constraint("DistanceX", -1, 1, 24, 2, Q("150 mm")),
    Sketcher.Constraint("DistanceX", -1, 1, 32, 2, Q("180 mm")),
])
sketch2.setExpression("Constraints[181]", "Params.sketch2_width")
sketch2.setExpression("Constraints[182]", "Params.sketch2_height")
pad2 = body.newObject("PartDesign::Pad", "Pad001")
pad2.Profile = sketch2
pad2.setExpression("Length", "Params.pad2_length")

doc.recompute()
